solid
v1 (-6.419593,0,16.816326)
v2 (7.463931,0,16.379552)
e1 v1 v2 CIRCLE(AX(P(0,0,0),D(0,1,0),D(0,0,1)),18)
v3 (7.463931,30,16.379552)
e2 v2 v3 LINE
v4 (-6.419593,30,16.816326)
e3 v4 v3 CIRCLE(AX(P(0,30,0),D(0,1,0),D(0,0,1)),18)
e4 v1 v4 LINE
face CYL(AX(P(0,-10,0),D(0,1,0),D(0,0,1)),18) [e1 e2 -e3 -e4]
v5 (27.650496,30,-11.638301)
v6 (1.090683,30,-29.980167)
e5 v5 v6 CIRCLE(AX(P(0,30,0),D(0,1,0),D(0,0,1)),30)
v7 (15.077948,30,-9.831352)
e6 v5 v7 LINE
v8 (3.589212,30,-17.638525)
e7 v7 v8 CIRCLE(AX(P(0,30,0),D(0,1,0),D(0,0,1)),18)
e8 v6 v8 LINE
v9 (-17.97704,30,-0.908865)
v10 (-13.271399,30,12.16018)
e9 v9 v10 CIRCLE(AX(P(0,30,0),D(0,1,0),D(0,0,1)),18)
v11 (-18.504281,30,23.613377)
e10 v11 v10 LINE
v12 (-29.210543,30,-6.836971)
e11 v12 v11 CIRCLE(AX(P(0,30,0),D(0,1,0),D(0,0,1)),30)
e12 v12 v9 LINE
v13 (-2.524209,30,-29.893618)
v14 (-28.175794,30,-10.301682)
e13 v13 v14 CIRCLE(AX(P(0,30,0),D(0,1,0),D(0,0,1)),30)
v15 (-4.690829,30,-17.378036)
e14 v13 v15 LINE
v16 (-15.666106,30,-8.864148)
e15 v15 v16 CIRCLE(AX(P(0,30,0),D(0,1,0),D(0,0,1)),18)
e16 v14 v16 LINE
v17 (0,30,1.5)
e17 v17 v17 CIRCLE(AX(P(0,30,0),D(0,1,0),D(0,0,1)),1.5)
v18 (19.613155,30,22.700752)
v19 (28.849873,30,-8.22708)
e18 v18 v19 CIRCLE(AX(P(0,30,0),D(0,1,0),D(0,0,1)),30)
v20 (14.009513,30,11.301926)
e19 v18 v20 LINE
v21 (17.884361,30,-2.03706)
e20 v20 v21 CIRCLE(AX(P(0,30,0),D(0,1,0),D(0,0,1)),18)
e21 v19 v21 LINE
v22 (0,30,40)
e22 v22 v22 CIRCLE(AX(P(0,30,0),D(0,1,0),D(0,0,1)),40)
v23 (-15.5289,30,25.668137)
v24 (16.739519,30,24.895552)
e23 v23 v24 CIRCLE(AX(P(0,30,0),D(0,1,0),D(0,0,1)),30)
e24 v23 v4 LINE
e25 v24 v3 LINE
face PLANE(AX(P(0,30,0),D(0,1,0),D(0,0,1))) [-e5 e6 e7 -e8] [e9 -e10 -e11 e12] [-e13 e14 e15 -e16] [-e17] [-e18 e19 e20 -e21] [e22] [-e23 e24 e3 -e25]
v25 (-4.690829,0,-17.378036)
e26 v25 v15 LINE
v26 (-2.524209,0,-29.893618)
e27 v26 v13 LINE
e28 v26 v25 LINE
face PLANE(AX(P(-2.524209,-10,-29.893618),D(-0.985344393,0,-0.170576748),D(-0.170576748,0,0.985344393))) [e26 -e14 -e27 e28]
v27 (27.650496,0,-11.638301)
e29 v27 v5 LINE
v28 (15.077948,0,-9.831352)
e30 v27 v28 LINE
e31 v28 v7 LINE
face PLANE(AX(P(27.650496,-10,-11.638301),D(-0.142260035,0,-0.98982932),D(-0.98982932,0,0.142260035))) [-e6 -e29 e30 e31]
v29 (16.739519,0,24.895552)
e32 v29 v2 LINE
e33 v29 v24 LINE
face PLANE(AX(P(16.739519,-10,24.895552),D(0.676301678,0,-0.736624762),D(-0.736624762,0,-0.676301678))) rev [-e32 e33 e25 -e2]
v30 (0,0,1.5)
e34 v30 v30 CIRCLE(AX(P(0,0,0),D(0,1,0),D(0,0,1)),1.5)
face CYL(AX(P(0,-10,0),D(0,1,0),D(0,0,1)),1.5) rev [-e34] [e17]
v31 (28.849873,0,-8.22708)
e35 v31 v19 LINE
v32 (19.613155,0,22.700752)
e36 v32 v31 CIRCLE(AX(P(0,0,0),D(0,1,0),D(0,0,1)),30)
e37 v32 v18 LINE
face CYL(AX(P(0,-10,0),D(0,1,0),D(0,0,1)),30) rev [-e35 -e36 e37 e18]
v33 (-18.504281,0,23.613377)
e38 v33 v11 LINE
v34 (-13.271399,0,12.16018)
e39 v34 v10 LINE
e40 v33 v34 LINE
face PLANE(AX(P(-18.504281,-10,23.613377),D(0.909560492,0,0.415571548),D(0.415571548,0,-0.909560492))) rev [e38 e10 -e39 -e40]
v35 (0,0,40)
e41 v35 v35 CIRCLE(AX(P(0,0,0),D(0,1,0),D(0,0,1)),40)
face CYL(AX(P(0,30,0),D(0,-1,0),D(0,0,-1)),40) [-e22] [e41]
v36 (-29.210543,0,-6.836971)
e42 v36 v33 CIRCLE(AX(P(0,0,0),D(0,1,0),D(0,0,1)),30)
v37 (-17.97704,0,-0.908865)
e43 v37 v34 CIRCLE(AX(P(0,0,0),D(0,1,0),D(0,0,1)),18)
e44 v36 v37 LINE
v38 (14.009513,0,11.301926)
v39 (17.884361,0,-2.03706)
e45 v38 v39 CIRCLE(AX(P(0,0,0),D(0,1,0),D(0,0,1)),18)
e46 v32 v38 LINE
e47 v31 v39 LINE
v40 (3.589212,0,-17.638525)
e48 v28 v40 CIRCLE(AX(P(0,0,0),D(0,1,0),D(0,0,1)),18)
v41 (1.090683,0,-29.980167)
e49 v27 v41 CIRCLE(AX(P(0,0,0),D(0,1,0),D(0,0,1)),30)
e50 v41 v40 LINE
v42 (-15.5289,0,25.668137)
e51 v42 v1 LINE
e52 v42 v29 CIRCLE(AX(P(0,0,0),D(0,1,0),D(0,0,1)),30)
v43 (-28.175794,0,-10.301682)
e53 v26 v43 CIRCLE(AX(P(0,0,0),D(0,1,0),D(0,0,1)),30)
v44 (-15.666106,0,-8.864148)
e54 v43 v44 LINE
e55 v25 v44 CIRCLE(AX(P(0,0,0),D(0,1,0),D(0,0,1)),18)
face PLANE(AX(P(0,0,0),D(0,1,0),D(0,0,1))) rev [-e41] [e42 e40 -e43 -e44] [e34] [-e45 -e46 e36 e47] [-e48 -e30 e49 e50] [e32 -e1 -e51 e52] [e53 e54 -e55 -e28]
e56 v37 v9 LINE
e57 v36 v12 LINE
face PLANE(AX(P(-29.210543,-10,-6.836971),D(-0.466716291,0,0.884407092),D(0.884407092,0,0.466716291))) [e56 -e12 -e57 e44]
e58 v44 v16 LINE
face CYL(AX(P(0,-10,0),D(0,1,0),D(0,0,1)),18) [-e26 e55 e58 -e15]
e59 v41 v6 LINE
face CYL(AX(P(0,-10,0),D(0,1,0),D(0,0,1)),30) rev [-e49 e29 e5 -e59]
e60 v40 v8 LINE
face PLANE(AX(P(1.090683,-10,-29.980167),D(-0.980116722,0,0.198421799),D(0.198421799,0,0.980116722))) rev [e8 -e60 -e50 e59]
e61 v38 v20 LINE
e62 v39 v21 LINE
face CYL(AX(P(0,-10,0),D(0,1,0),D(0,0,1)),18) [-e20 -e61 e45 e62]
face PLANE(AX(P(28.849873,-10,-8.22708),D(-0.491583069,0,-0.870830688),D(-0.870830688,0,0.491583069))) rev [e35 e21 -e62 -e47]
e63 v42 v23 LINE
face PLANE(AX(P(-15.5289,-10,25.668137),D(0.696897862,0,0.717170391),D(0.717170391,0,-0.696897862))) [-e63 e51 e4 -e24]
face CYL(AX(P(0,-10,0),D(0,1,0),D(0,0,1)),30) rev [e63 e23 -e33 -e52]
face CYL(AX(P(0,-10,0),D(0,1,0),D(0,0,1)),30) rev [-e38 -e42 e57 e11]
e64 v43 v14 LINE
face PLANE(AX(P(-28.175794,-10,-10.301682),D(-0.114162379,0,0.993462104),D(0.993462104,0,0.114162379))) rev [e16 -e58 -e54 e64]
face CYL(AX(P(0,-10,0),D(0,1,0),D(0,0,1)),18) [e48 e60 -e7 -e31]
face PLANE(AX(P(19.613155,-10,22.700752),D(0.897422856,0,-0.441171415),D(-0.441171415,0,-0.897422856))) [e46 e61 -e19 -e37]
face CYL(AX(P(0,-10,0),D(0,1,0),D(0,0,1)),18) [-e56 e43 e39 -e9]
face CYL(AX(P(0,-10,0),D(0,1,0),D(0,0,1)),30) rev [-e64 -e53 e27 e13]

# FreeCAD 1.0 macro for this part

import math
import FreeCAD as App
import Part
import Sketcher

V = App.Vector
Q = App.Units.Quantity

doc = App.newDocument("Part")
body = doc.addObject("PartDesign::Body", "Body")

# Sketch on XZ plane
sketch1 = body.newObject("Sketcher::SketchObject", "Sketch")
sketch1.AttachmentSupport = (doc.getObject("XZ_Plane"), [""])
sketch1.MapMode = "FlatFace"
sketch1.addGeometry(Part.Circle(V(0, 0, 0), V(0, 0, 1), 40), False)
sketch1.addConstraint([
    Sketcher.Constraint("Coincident", 0, 3, -1, 1),
    Sketcher.Constraint("Diameter", 0, Q("80 mm")),
])
pad1 = body.newObject("PartDesign::Pad", "Pad")
pad1.Profile = sketch1
pad1.Length = 30
pad1.Reversed = True

# Sketch on XZ plane
sketch2 = body.newObject("Sketcher::SketchObject", "Sketch001")
sketch2.AttachmentSupport = (doc.getObject("XZ_Plane"), [""])
sketch2.MapMode = "FlatFace"
sketch2.AttachmentOffset = App.Placement(V(0, 0, -30), App.Rotation())
sketch2.addGeometry([
    Part.LineSegment(V(-5, -17, 0), V(-3, -30, 0)),  # 0
    Part.ArcOfCircle(Part.Circle(V(0, 0, 0), V(0, 0, 1), 30), math.radians(-160), math.radians(-95)),  # 1
    Part.LineSegment(V(-28, -10, 0), V(-16, -9, 0)),  # 2
    Part.ArcOfCircle(Part.Circle(V(0, 0, 0), V(0, 0, 1), 18), math.radians(-150), math.radians(-105)),  # 3
    Part.LineSegment(V(1, -30, 0), V(4, -18, 0)),  # 4
    Part.ArcOfCircle(Part.Circle(V(0, 0, 0), V(0, 0, 1), 18), math.radians(-78), math.radians(-33)),  # 5
    Part.LineSegment(V(15, -10, 0), V(28, -12, 0)),  # 6
    Part.ArcOfCircle(Part.Circle(V(0, 0, 0), V(0, 0, 1), 30), math.radians(-88), math.radians(-23)),  # 7
    Part.LineSegment(V(29, -8, 0), V(18, -2, 0)),  # 8
    Part.ArcOfCircle(Part.Circle(V(0, 0, 0), V(0, 0, 1), 18), math.radians(-6), math.radians(39)),  # 9
    Part.LineSegment(V(14, 11, 0), V(20, 23, 0)),  # 10
    Part.ArcOfCircle(Part.Circle(V(0, 0, 0), V(0, 0, 1), 30), math.radians(-16), math.radians(49)),  # 11
    Part.LineSegment(V(17, 25, 0), V(7, 16, 0)),  # 12
    Part.ArcOfCircle(Part.Circle(V(0, 0, 0), V(0, 0, 1), 18), math.radians(66), math.radians(111)),  # 13
    Part.LineSegment(V(-6, 17, 0), V(-16, 26, 0)),  # 14
    Part.ArcOfCircle(Part.Circle(V(0, 0, 0), V(0, 0, 1), 30), math.radians(56), math.radians(121)),  # 15
    Part.LineSegment(V(-19, 24, 0), V(-13, 12, 0)),  # 16
    Part.ArcOfCircle(Part.Circle(V(0, 0, 0), V(0, 0, 1), 18), math.radians(138), math.radians(183)),  # 17
    Part.LineSegment(V(-18, -1, 0), V(-29, -7, 0)),  # 18
    Part.ArcOfCircle(Part.Circle(V(0, 0, 0), V(0, 0, 1), 30), math.radians(128), math.radians(193)),  # 19
], False)
sketch2.addConstraint([
    Sketcher.Constraint("Coincident", 0, 2, 1, 2),
    Sketcher.Constraint("Coincident", 1, 1, 2, 1),
    Sketcher.Constraint("Coincident", 2, 2, 3, 1),
    Sketcher.Constraint("Coincident", 3, 2, 0, 1),
    Sketcher.Constraint("Coincident", 4, 2, 5, 1),
    Sketcher.Constraint("Coincident", 5, 2, 6, 1),
    Sketcher.Constraint("Coincident", 6, 2, 7, 2),
    Sketcher.Constraint("Coincident", 7, 1, 4, 1),
    Sketcher.Constraint("Coincident", 8, 2, 9, 1),
    Sketcher.Constraint("Coincident", 9, 2, 10, 1),
    Sketcher.Constraint("Coincident", 10, 2, 11, 2),
    Sketcher.Constraint("Coincident", 11, 1, 8, 1),
    Sketcher.Constraint("Coincident", 12, 2, 13, 1),
    Sketcher.Constraint("Coincident", 13, 2, 14, 1),
    Sketcher.Constraint("Coincident", 14, 2, 15, 2),
    Sketcher.Constraint("Coincident", 15, 1, 12, 1),
    Sketcher.Constraint("Coincident", 16, 2, 17, 1),
    Sketcher.Constraint("Coincident", 17, 2, 18, 1),
    Sketcher.Constraint("Coincident", 18, 2, 19, 2),
    Sketcher.Constraint("Coincident", 19, 1, 16, 1),
    Sketcher.Constraint("Coincident", 1, 3, -1, 1),
    Sketcher.Constraint("Coincident", 3, 3, -1, 1),
    Sketcher.Constraint("Coincident", 5, 3, -1, 1),
    Sketcher.Constraint("Coincident", 7, 3, -1, 1),
    Sketcher.Constraint("Coincident", 9, 3, -1, 1),
    Sketcher.Constraint("Coincident", 11, 3, -1, 1),
    Sketcher.Constraint("Coincident", 13, 3, -1, 1),
    Sketcher.Constraint("Coincident", 15, 3, -1, 1),
    Sketcher.Constraint("Coincident", 17, 3, -1, 1),
    Sketcher.Constraint("Coincident", 19, 3, -1, 1),
    Sketcher.Constraint("Equal", 3, 5),
    Sketcher.Constraint("Equal", 1, 7),
    Sketcher.Constraint("Equal", 5, 9),
    Sketcher.Constraint("Equal", 7, 11),
    Sketcher.Constraint("Equal", 9, 13),
    Sketcher.Constraint("Equal", 11, 15),
    Sketcher.Constraint("Equal", 13, 17),
    Sketcher.Constraint("Equal", 15, 19),
    Sketcher.Constraint("Equal", 2, 4),
    Sketcher.Constraint("Equal", 0, 6),
    Sketcher.Constraint("Equal", 4, 8),
    Sketcher.Constraint("Equal", 6, 10),
    Sketcher.Constraint("Equal", 8, 12),
    Sketcher.Constraint("Equal", 10, 14),
    Sketcher.Constraint("Equal", 12, 16),
    Sketcher.Constraint("Equal", 14, 18),
    Sketcher.Constraint("Radius", 1, Q("30 mm")),
    Sketcher.Constraint("Radius", 3, Q("18 mm")),
    Sketcher.Constraint("DistanceY", 12, 2, 15, 1, Q("8.515999 mm")),
    Sketcher.Constraint("DistanceY", 6, 2, -1, 1, Q("11.638301 mm")),
    Sketcher.Constraint("DistanceX", 14, 2, -1, 1, Q("15.5289 mm")),
    Sketcher.Constraint("DistanceX", 16, 2, -1, 1, Q("13.271399 mm")),
    Sketcher.Constraint("DistanceY", 12, 2, 10, 2, Q("6.3212 mm")),
    Sketcher.Constraint("DistanceX", 0, 2, -1, 1, Q("2.524209 mm")),
    Sketcher.Constraint("DistanceY", 1, 1, -1, 1, Q("10.301682 mm")),
    Sketcher.Constraint("DistanceX", 3, 2, -1, 1, Q("4.690829 mm")),
    Sketcher.Constraint("DistanceX", -1, 1, 8, 2, Q("17.884361 mm")),
    Sketcher.Constraint("DistanceY", 11, 1, -1, 1, Q("8.22708 mm")),
    Sketcher.Constraint("DistanceX", 17, 2, -1, 1, Q("17.97704 mm")),
    Sketcher.Constraint("DistanceX", 3, 2, 4, 2, Q("8.280041 mm")),
])
pocket1 = body.newObject("PartDesign::Pocket", "Pocket")
pocket1.Profile = sketch2
pocket1.Length = 40
pocket1.Reversed = True

# Sketch on XZ plane
sketch3 = body.newObject("Sketcher::SketchObject", "Sketch002")
sketch3.AttachmentSupport = (doc.getObject("XZ_Plane"), [""])
sketch3.MapMode = "FlatFace"
sketch3.AttachmentOffset = App.Placement(V(0, 0, -30), App.Rotation())
sketch3.addGeometry(Part.Circle(V(0, 0, 0), V(0, 0, 1), 1.5), False)
sketch3.addConstraint([
    Sketcher.Constraint("Coincident", 0, 3, -1, 1),
    Sketcher.Constraint("Diameter", 0, Q("3 mm")),
])
pocket2 = body.newObject("PartDesign::Pocket", "Pocket001")
pocket2.Profile = sketch3
pocket2.Length = 40
pocket2.Reversed = True

doc.recompute()
